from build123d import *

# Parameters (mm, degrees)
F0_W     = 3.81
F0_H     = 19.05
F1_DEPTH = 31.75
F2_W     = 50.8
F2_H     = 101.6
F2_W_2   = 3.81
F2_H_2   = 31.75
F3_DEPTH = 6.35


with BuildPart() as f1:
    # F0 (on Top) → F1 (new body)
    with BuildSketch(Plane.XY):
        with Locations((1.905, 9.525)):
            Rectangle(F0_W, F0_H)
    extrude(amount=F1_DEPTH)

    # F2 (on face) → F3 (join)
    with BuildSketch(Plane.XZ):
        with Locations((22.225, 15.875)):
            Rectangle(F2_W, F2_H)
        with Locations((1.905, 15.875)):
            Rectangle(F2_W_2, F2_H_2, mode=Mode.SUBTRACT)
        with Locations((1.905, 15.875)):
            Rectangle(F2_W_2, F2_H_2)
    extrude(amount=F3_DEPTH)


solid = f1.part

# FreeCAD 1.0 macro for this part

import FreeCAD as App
import Part
import Sketcher

V = App.Vector
Q = App.Units.Quantity

doc = App.newDocument("Part")
body = doc.addObject("PartDesign::Body", "Body")

# Sketch on XY plane
sketch1 = body.newObject("Sketcher::SketchObject", "Sketch")
sketch1.AttachmentSupport = (doc.getObject("XY_Plane"), [""])
sketch1.MapMode = "FlatFace"
sketch1.addGeometry(Part.LineSegment(V(0, 19.1, 0), V(0, 0, 0)), False)
sketch1.addGeometry(Part.LineSegment(V(0, 0, 0), V(3.8, 0, 0)), False)
sketch1.addGeometry(Part.LineSegment(V(3.8, 0, 0), V(3.8, 19.1, 0)), False)
sketch1.addGeometry(Part.LineSegment(V(3.8, 19.1, 0), V(0, 19.1, 0)), False)
sketch1.addConstraint(Sketcher.Constraint("Coincident", 0, 2, 1, 1))
sketch1.addConstraint(Sketcher.Constraint("Coincident", 1, 2, 2, 1))
sketch1.addConstraint(Sketcher.Constraint("Coincident", 2, 2, 3, 1))
sketch1.addConstraint(Sketcher.Constraint("Coincident", 3, 2, 0, 1))
sketch1.addConstraint(Sketcher.Constraint("Vertical", 0))
sketch1.addConstraint(Sketcher.Constraint("Horizontal", 1))
sketch1.addConstraint(Sketcher.Constraint("Vertical", 2))
sketch1.addConstraint(Sketcher.Constraint("Horizontal", 3))
sketch1.addConstraint(Sketcher.Constraint("Coincident", 0, 2, -1, 1))
sketch1.addConstraint(Sketcher.Constraint("DistanceX", 1, 1, 1, 2, Q("0.15 in")))
sketch1.addConstraint(Sketcher.Constraint("DistanceY", 0, 2, 0, 1, Q("0.75 in")))
pad1 = body.newObject("PartDesign::Pad", "Pad")
pad1.Profile = sketch1
pad1.Length = Q("1.25 in")

# Sketch on XZ plane
sketch2 = body.newObject("Sketcher::SketchObject", "Sketch001")
sketch2.AttachmentSupport = (doc.getObject("XZ_Plane"), [""])
sketch2.MapMode = "FlatFace"
sketch2.addGeometry(Part.LineSegment(V(-3, 67, 0), V(-3, -35, 0)), False)
sketch2.addGeometry(Part.LineSegment(V(-3, -35, 0), V(48, -35, 0)), False)
sketch2.addGeometry(Part.LineSegment(V(48, -35, 0), V(48, 67, 0)), False)
sketch2.addGeometry(Part.LineSegment(V(48, 67, 0), V(-3, 67, 0)), False)
sketch2.addConstraint(Sketcher.Constraint("Coincident", 0, 2, 1, 1))
sketch2.addConstraint(Sketcher.Constraint("Coincident", 1, 2, 2, 1))
sketch2.addConstraint(Sketcher.Constraint("Coincident", 2, 2, 3, 1))
sketch2.addConstraint(Sketcher.Constraint("Coincident", 3, 2, 0, 1))
sketch2.addConstraint(Sketcher.Constraint("Vertical", 0))
sketch2.addConstraint(Sketcher.Constraint("Horizontal", 1))
sketch2.addConstraint(Sketcher.Constraint("Vertical", 2))
sketch2.addConstraint(Sketcher.Constraint("Horizontal", 3))
sketch2.addConstraint(Sketcher.Constraint("DistanceX", 1, 1, 1, 2, Q("2 in")))
sketch2.addConstraint(Sketcher.Constraint("DistanceY", 0, 2, 0, 1, Q("4 in")))
sketch2.addConstraint(Sketcher.Constraint("DistanceX", 0, 2, -1, 1, Q("0.125 in")))
sketch2.addConstraint(Sketcher.Constraint("DistanceY", 0, 2, -1, 1, Q("1.375 in")))
pad2 = body.newObject("PartDesign::Pad", "Pad001")
pad2.Profile = sketch2
pad2.Length = Q("0.25 in")

doc.recompute()
